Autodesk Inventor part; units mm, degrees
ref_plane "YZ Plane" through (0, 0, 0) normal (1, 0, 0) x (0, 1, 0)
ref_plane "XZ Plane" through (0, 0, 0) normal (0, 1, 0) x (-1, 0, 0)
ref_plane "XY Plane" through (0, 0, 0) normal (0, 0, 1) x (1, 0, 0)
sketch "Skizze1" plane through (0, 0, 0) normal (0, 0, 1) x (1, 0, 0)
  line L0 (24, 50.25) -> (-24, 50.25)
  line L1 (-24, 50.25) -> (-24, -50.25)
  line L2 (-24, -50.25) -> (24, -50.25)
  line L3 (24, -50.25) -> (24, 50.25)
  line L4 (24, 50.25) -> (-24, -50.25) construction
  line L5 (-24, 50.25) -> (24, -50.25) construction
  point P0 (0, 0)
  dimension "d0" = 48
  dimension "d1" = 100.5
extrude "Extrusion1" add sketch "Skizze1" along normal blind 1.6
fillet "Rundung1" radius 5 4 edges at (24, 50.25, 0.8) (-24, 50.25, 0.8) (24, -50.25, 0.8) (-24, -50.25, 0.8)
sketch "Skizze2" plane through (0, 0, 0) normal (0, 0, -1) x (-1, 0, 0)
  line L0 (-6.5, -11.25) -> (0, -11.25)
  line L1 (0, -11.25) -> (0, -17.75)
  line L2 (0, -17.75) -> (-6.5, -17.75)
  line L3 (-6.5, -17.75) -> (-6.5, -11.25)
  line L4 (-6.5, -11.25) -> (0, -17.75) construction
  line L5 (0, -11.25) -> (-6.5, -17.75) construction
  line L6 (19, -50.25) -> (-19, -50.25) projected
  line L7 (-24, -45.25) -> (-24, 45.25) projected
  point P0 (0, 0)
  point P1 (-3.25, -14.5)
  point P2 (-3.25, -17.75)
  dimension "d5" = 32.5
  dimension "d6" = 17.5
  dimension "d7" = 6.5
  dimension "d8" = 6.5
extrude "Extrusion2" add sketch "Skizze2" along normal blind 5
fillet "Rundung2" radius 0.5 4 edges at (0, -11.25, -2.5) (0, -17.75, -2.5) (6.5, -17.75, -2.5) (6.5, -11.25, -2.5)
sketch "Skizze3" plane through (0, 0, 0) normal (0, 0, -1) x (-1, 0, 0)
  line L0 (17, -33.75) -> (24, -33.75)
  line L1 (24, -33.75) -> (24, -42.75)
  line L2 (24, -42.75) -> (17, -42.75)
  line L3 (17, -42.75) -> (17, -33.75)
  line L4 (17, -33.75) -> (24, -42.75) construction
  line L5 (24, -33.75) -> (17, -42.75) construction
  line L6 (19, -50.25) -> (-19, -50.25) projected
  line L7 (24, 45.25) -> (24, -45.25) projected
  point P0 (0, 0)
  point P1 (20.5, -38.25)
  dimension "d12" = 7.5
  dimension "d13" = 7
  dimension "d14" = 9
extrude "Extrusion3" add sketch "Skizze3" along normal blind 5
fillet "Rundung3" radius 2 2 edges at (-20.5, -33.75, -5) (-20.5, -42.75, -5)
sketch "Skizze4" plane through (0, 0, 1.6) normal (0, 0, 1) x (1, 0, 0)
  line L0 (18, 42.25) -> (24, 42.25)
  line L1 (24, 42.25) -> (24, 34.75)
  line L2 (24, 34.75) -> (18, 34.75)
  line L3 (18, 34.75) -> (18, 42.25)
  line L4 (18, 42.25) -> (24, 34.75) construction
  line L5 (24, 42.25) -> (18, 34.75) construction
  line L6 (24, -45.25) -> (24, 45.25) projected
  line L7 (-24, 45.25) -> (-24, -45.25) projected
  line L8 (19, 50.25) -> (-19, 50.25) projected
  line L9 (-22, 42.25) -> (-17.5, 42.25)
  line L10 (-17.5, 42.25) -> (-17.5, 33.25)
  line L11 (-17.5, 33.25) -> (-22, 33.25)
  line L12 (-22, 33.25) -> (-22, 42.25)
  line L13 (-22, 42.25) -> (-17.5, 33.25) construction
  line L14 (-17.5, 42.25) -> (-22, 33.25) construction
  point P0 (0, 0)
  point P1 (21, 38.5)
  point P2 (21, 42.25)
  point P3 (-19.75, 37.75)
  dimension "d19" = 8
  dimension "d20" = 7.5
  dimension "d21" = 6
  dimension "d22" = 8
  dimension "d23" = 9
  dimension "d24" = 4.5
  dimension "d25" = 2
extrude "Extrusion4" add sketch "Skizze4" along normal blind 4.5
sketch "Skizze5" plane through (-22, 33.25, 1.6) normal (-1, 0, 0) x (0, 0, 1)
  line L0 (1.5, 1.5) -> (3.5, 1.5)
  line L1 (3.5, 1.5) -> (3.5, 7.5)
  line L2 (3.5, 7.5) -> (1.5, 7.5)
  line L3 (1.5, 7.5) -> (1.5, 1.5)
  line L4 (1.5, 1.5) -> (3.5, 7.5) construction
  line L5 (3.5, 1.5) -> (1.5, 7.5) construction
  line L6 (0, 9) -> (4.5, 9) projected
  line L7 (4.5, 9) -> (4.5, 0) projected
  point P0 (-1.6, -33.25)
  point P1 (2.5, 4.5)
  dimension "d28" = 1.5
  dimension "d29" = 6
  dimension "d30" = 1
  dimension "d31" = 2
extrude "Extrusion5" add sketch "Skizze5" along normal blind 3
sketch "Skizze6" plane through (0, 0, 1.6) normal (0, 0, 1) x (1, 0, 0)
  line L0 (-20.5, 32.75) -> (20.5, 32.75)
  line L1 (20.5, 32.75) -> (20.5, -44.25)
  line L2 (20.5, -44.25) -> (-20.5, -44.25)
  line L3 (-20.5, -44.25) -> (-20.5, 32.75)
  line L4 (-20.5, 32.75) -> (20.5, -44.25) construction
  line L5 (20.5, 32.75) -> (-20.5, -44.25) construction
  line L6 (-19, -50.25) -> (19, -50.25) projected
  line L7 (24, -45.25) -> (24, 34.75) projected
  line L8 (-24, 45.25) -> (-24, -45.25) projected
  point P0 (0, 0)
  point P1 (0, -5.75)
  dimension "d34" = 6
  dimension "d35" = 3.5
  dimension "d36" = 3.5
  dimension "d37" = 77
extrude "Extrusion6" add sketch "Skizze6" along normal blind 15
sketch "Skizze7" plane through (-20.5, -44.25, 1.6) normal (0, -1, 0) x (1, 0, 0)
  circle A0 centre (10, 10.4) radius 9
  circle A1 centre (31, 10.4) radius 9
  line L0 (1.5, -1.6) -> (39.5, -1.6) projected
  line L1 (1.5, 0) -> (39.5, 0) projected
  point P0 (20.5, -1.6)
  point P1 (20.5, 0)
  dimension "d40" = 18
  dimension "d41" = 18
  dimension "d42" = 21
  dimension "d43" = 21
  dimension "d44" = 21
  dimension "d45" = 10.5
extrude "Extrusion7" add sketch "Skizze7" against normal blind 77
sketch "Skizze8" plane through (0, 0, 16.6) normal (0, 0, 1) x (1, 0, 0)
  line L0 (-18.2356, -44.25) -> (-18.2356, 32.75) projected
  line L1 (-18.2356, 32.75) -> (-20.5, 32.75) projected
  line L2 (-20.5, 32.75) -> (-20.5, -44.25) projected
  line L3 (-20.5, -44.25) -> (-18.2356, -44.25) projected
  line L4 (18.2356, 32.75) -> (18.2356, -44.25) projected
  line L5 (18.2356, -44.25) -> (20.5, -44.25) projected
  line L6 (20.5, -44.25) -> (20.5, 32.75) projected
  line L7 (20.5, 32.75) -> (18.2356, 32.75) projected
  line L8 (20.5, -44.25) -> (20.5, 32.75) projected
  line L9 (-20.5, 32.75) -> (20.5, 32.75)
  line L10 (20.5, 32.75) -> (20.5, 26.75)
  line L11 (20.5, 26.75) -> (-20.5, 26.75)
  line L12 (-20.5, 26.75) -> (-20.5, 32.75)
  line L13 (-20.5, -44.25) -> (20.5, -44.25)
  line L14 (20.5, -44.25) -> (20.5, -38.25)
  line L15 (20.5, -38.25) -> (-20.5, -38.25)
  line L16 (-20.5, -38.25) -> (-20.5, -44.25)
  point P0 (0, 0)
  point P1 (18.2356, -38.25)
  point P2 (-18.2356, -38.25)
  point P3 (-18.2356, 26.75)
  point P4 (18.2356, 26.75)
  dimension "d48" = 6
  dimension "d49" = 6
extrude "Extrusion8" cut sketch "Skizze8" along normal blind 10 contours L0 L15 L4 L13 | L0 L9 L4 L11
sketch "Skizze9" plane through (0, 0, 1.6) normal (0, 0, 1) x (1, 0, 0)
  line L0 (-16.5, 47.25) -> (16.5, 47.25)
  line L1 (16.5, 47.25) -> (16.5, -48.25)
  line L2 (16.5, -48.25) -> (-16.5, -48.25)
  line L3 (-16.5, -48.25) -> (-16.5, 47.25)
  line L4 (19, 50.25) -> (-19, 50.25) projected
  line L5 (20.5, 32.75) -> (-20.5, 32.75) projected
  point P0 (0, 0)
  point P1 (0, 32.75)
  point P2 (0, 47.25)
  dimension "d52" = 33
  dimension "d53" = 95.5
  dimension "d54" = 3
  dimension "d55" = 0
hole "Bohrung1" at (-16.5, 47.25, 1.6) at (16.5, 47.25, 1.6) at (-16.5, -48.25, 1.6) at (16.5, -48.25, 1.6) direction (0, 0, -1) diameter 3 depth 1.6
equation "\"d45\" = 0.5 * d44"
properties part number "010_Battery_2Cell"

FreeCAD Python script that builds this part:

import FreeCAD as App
import Part
import Sketcher
Q = App.Units.Quantity


def edges_at(feature, points):
    """Names of the edges that pass closest to the given points."""
    edges = feature.Shape.Edges
    near = lambda p: min(range(len(edges)), key=lambda i: edges[i].distToShape(Part.Vertex(*p))[0])
    return sorted({f"Edge{near(p) + 1}" for p in points})

doc = App.newDocument("Part")
body = doc.addObject("PartDesign::Body", "Body")

sketch1 = body.newObject("Sketcher::SketchObject", "Sketch")
sketch1.AttachmentSupport = (doc.getObject("XY_Plane"), [""])
sketch1.MapMode = "FlatFace"
sketch1.addGeometry(Part.LineSegment(App.Vector(24, -50, 0), App.Vector(24, 50, 0)), False)
sketch1.addGeometry(Part.LineSegment(App.Vector(24, 50, 0), App.Vector(-24, 50, 0)), False)
sketch1.addGeometry(Part.LineSegment(App.Vector(-24, 50, 0), App.Vector(-24, -50, 0)), False)
sketch1.addGeometry(Part.LineSegment(App.Vector(-24, -50, 0), App.Vector(24, -50, 0)), False)
sketch1.addConstraint(Sketcher.Constraint("Coincident", 0, 2, 1, 1))
sketch1.addConstraint(Sketcher.Constraint("Coincident", 1, 2, 2, 1))
sketch1.addConstraint(Sketcher.Constraint("Coincident", 2, 2, 3, 1))
sketch1.addConstraint(Sketcher.Constraint("Coincident", 3, 2, 0, 1))
sketch1.addConstraint(Sketcher.Constraint("Vertical", 0))
sketch1.addConstraint(Sketcher.Constraint("Horizontal", 1))
sketch1.addConstraint(Sketcher.Constraint("Vertical", 2))
sketch1.addConstraint(Sketcher.Constraint("Horizontal", 3))
sketch1.addConstraint(Sketcher.Constraint("Symmetric", 0, 2, 2, 2, -1, 1))
sketch1.addConstraint(Sketcher.Constraint("DistanceX", 1, 2, 1, 1, Q("48 mm")))
sketch1.addConstraint(Sketcher.Constraint("DistanceY", 0, 1, 0, 2, Q("100.5 mm")))
pad1 = body.newObject("PartDesign::Pad", "Pad")
pad1.Profile = sketch1
pad1.Length = 1.6
doc.recompute()

fillet = body.newObject("PartDesign::Fillet", "Fillet")
fillet.Base = (pad1, edges_at(pad1, [
    (24, 50.25, 0.8),
    (-24, 50.25, 0.8),
    (24, -50.25, 0.8),
    (-24, -50.25, 0.8),
]))
fillet.Radius = 5

sketch2 = body.newObject("Sketcher::SketchObject", "Sketch001")
sketch2.AttachmentSupport = (doc.getObject("XY_Plane"), [""])
sketch2.MapMode = "FlatFace"
sketch2.addGeometry(Part.LineSegment(App.Vector(0, -11, 0), App.Vector(6, -11, 0)), False)
sketch2.addGeometry(Part.LineSegment(App.Vector(6, -11, 0), App.Vector(6, -18, 0)), False)
sketch2.addGeometry(Part.LineSegment(App.Vector(6, -18, 0), App.Vector(0, -18, 0)), False)
sketch2.addGeometry(Part.LineSegment(App.Vector(0, -18, 0), App.Vector(0, -11, 0)), False)
sketch2.addConstraint(Sketcher.Constraint("Coincident", 0, 2, 1, 1))
sketch2.addConstraint(Sketcher.Constraint("Coincident", 1, 2, 2, 1))
sketch2.addConstraint(Sketcher.Constraint("Coincident", 2, 2, 3, 1))
sketch2.addConstraint(Sketcher.Constraint("Coincident", 3, 2, 0, 1))
sketch2.addConstraint(Sketcher.Constraint("Horizontal", 0))
sketch2.addConstraint(Sketcher.Constraint("Vertical", 1))
sketch2.addConstraint(Sketcher.Constraint("Horizontal", 2))
sketch2.addConstraint(Sketcher.Constraint("Vertical", 3))
sketch2.addConstraint(Sketcher.Constraint("PointOnObject", 2, 2, -2))
sketch2.addConstraint(Sketcher.Constraint("Equal", 2, 1))
sketch2.addConstraint(Sketcher.Constraint("DistanceX", 0, 1, 0, 2, Q("6.5 mm")))
sketch2.addConstraint(Sketcher.Constraint("DistanceY", 0, 2, -1, 1, Q("11.25 mm")))
pad2 = body.newObject("PartDesign::Pad", "Pad001")
pad2.Profile = sketch2
pad2.Length = 5
pad2.Reversed = True
doc.recompute()

fillet2 = body.newObject("PartDesign::Fillet", "Fillet001")
fillet2.Base = (pad2, edges_at(pad2, [
    (0, -11.25, -2.5),
    (0, -17.75, -2.5),
    (6.5, -17.75, -2.5),
    (6.5, -11.25, -2.5),
]))
fillet2.Radius = 0.5

sketch3 = body.newObject("Sketcher::SketchObject", "Sketch002")
sketch3.AttachmentSupport = (doc.getObject("XY_Plane"), [""])
sketch3.MapMode = "FlatFace"
sketch3.addGeometry(Part.LineSegment(App.Vector(-24, -34, 0), App.Vector(-17, -34, 0)), False)
sketch3.addGeometry(Part.LineSegment(App.Vector(-17, -34, 0), App.Vector(-17, -43, 0)), False)
sketch3.addGeometry(Part.LineSegment(App.Vector(-17, -43, 0), App.Vector(-24, -43, 0)), False)
sketch3.addGeometry(Part.LineSegment(App.Vector(-24, -43, 0), App.Vector(-24, -34, 0)), False)
sketch3.addConstraint(Sketcher.Constraint("Coincident", 0, 2, 1, 1))
sketch3.addConstraint(Sketcher.Constraint("Coincident", 1, 2, 2, 1))
sketch3.addConstraint(Sketcher.Constraint("Coincident", 2, 2, 3, 1))
sketch3.addConstraint(Sketcher.Constraint("Coincident", 3, 2, 0, 1))
sketch3.addConstraint(Sketcher.Constraint("Horizontal", 0))
sketch3.addConstraint(Sketcher.Constraint("Vertical", 1))
sketch3.addConstraint(Sketcher.Constraint("Horizontal", 2))
sketch3.addConstraint(Sketcher.Constraint("Vertical", 3))
sketch3.addConstraint(Sketcher.Constraint("DistanceX", 0, 1, 0, 2, Q("7 mm")))
sketch3.addConstraint(Sketcher.Constraint("DistanceY", 1, 2, 1, 1, Q("9 mm")))
sketch3.addConstraint(Sketcher.Constraint("DistanceX", 0, 2, -1, 1, Q("17 mm")))
sketch3.addConstraint(Sketcher.Constraint("DistanceY", 0, 2, -1, 1, Q("33.75 mm")))
pad3 = body.newObject("PartDesign::Pad", "Pad002")
pad3.Profile = sketch3
pad3.Length = 5
pad3.Reversed = True
doc.recompute()

fillet3 = body.newObject("PartDesign::Fillet", "Fillet002")
fillet3.Base = (pad3, edges_at(pad3, [(-20.5, -33.75, -5), (-20.5, -42.75, -5)]))
fillet3.Radius = 2

sketch4 = body.newObject("Sketcher::SketchObject", "Sketch003")
sketch4.AttachmentSupport = (doc.getObject("XY_Plane"), [""])
sketch4.MapMode = "FlatFace"
sketch4.AttachmentOffset = App.Placement(App.Vector(0, 0, 1.6), App.Rotation())
sketch4.addGeometry(Part.LineSegment(App.Vector(24, 42.2, 0), App.Vector(18, 42.2, 0)), False)
sketch4.addGeometry(Part.LineSegment(App.Vector(18, 42.2, 0), App.Vector(18, 34.8, 0)), False)
sketch4.addGeometry(Part.LineSegment(App.Vector(18, 34.8, 0), App.Vector(24, 34.8, 0)), False)
sketch4.addGeometry(Part.LineSegment(App.Vector(24, 34.8, 0), App.Vector(24, 42.2, 0)), False)
sketch4.addGeometry(Part.LineSegment(App.Vector(-17.5, 42.2, 0), App.Vector(-22, 42.2, 0)), False)
sketch4.addGeometry(Part.LineSegment(App.Vector(-22, 42.2, 0), App.Vector(-22, 33.2, 0)), False)
sketch4.addGeometry(Part.LineSegment(App.Vector(-22, 33.2, 0), App.Vector(-17.5, 33.2, 0)), False)
sketch4.addGeometry(Part.LineSegment(App.Vector(-17.5, 33.2, 0), App.Vector(-17.5, 42.2, 0)), False)
sketch4.addConstraint(Sketcher.Constraint("Coincident", 0, 2, 1, 1))
sketch4.addConstraint(Sketcher.Constraint("Coincident", 1, 2, 2, 1))
sketch4.addConstraint(Sketcher.Constraint("Coincident", 2, 2, 3, 1))
sketch4.addConstraint(Sketcher.Constraint("Coincident", 3, 2, 0, 1))
sketch4.addConstraint(Sketcher.Constraint("Coincident", 4, 2, 5, 1))
sketch4.addConstraint(Sketcher.Constraint("Coincident", 5, 2, 6, 1))
sketch4.addConstraint(Sketcher.Constraint("Coincident", 6, 2, 7, 1))
sketch4.addConstraint(Sketcher.Constraint("Coincident", 7, 2, 4, 1))
sketch4.addConstraint(Sketcher.Constraint("Horizontal", 0))
sketch4.addConstraint(Sketcher.Constraint("Vertical", 1))
sketch4.addConstraint(Sketcher.Constraint("Horizontal", 2))
sketch4.addConstraint(Sketcher.Constraint("Vertical", 3))
sketch4.addConstraint(Sketcher.Constraint("Horizontal", 4))
sketch4.addConstraint(Sketcher.Constraint("Vertical", 5))
sketch4.addConstraint(Sketcher.Constraint("Horizontal", 6))
sketch4.addConstraint(Sketcher.Constraint("Vertical", 7))
sketch4.addConstraint(Sketcher.Constraint("Horizontal", 3, 2, 4, 2))
sketch4.addConstraint(Sketcher.Constraint("DistanceX", 0, 2, 0, 1, Q("6 mm")))
sketch4.addConstraint(Sketcher.Constraint("DistanceY", 5, 2, 5, 1, Q("9 mm")))
sketch4.addConstraint(Sketcher.Constraint("DistanceX", 4, 2, 4, 1, Q("4.5 mm")))
sketch4.addConstraint(Sketcher.Constraint("DistanceY", 1, 2, 1, 1, Q("7.5 mm")))
sketch4.addConstraint(Sketcher.Constraint("DistanceX", -1, 1, 0, 2, Q("18 mm")))
sketch4.addConstraint(Sketcher.Constraint("DistanceX", 4, 2, -1, 1, Q("22 mm")))
sketch4.addConstraint(Sketcher.Constraint("DistanceY", -1, 1, 0, 2, Q("42.25 mm")))
pad4 = body.newObject("PartDesign::Pad", "Pad003")
pad4.Profile = sketch4
pad4.Length = 4.5

sketch5 = body.newObject("Sketcher::SketchObject", "Sketch004")
sketch5.AttachmentSupport = (doc.getObject("YZ_Plane"), [""])
sketch5.MapMode = "FlatFace"
sketch5.AttachmentOffset = App.Placement(App.Vector(0, 0, -22), App.Rotation())
sketch5.addGeometry(Part.LineSegment(App.Vector(40.8, 3.1, 0), App.Vector(34.8, 3.1, 0)), False)
sketch5.addGeometry(Part.LineSegment(App.Vector(34.8, 3.1, 0), App.Vector(34.8, 5.1, 0)), False)
sketch5.addGeometry(Part.LineSegment(App.Vector(34.8, 5.1, 0), App.Vector(40.8, 5.1, 0)), False)
sketch5.addGeometry(Part.LineSegment(App.Vector(40.8, 5.1, 0), App.Vector(40.8, 3.1, 0)), False)
sketch5.addConstraint(Sketcher.Constraint("Coincident", 0, 2, 1, 1))
sketch5.addConstraint(Sketcher.Constraint("Coincident", 1, 2, 2, 1))
sketch5.addConstraint(Sketcher.Constraint("Coincident", 2, 2, 3, 1))
sketch5.addConstraint(Sketcher.Constraint("Coincident", 3, 2, 0, 1))
sketch5.addConstraint(Sketcher.Constraint("Horizontal", 0))
sketch5.addConstraint(Sketcher.Constraint("Vertical", 1))
sketch5.addConstraint(Sketcher.Constraint("Horizontal", 2))
sketch5.addConstraint(Sketcher.Constraint("Vertical", 3))
sketch5.addConstraint(Sketcher.Constraint("DistanceX", 0, 2, 0, 1, Q("6 mm")))
sketch5.addConstraint(Sketcher.Constraint("DistanceY", 1, 1, 1, 2, Q("2 mm")))
sketch5.addConstraint(Sketcher.Constraint("DistanceY", -1, 1, 0, 2, Q("3.1 mm")))
sketch5.addConstraint(Sketcher.Constraint("DistanceX", -1, 1, 0, 2, Q("34.75 mm")))
pad5 = body.newObject("PartDesign::Pad", "Pad004")
pad5.Profile = sketch5
pad5.Length = 3
pad5.Reversed = True

sketch6 = body.newObject("Sketcher::SketchObject", "Sketch005")
sketch6.AttachmentSupport = (doc.getObject("XY_Plane"), [""])
sketch6.MapMode = "FlatFace"
sketch6.AttachmentOffset = App.Placement(App.Vector(0, 0, 1.6), App.Rotation())
sketch6.addGeometry(Part.LineSegment(App.Vector(20, 33, 0), App.Vector(-20, 33, 0)), False)
sketch6.addGeometry(Part.LineSegment(App.Vector(-20, 33, 0), App.Vector(-20, -44, 0)), False)
sketch6.addGeometry(Part.LineSegment(App.Vector(-20, -44, 0), App.Vector(20, -44, 0)), False)
sketch6.addGeometry(Part.LineSegment(App.Vector(20, -44, 0), App.Vector(20, 33, 0)), False)
sketch6.addConstraint(Sketcher.Constraint("Coincident", 0, 2, 1, 1))
sketch6.addConstraint(Sketcher.Constraint("Coincident", 1, 2, 2, 1))
sketch6.addConstraint(Sketcher.Constraint("Coincident", 2, 2, 3, 1))
sketch6.addConstraint(Sketcher.Constraint("Coincident", 3, 2, 0, 1))
sketch6.addConstraint(Sketcher.Constraint("Horizontal", 0))
sketch6.addConstraint(Sketcher.Constraint("Vertical", 1))
sketch6.addConstraint(Sketcher.Constraint("Horizontal", 2))
sketch6.addConstraint(Sketcher.Constraint("Vertical", 3))
sketch6.addConstraint(Sketcher.Constraint("DistanceY", 1, 2, 1, 1, Q("77 mm")))
sketch6.addConstraint(Sketcher.Constraint("DistanceX", 0, 2, 0, 1, Q("41 mm")))
sketch6.addConstraint(Sketcher.Constraint("DistanceX", 0, 2, -1, 1, Q("20.5 mm")))
sketch6.addConstraint(Sketcher.Constraint("DistanceY", -1, 1, 0, 2, Q("32.75 mm")))
pad6 = body.newObject("PartDesign::Pad", "Pad005")
pad6.Profile = sketch6
pad6.Length = 15

sketch7 = body.newObject("Sketcher::SketchObject", "Sketch006")
sketch7.AttachmentSupport = (doc.getObject("XZ_Plane"), [""])
sketch7.MapMode = "FlatFace"
sketch7.AttachmentOffset = App.Placement(App.Vector(0, 0, 44.25), App.Rotation())
sketch7.addGeometry(Part.Circle(App.Vector(-10, 12, 0), App.Vector(0, 0, 1), 9), False)
sketch7.addGeometry(Part.Circle(App.Vector(10, 12, 0), App.Vector(0, 0, 1), 9), False)
sketch7.addConstraint(Sketcher.Constraint("Equal", 0, 1))
sketch7.addConstraint(Sketcher.Constraint("Symmetric", 0, 3, 1, 3, -2))
sketch7.addConstraint(Sketcher.Constraint("Diameter", 0, Q("18 mm")))
sketch7.addConstraint(Sketcher.Constraint("DistanceX", 0, 3, 1, 3, Q("21 mm")))
sketch7.addConstraint(Sketcher.Constraint("DistanceY", -1, 1, 0, 3, Q("12 mm")))
pad7 = body.newObject("PartDesign::Pad", "Pad006")
pad7.Profile = sketch7
pad7.Length = 77
pad7.Reversed = True

sketch8 = body.newObject("Sketcher::SketchObject", "Sketch007")
sketch8.AttachmentSupport = (doc.getObject("XY_Plane"), [""])
sketch8.MapMode = "FlatFace"
sketch8.AttachmentOffset = App.Placement(App.Vector(0, 0, 16.6), App.Rotation())
sketch8.addGeometry(Part.LineSegment(App.Vector(-18, -38, 0), App.Vector(-18, -44, 0)), False)
sketch8.addGeometry(Part.LineSegment(App.Vector(-18, -44, 0), App.Vector(18, -44, 0)), False)
sketch8.addGeometry(Part.LineSegment(App.Vector(18, -44, 0), App.Vector(18, -38, 0)), False)
sketch8.addGeometry(Part.LineSegment(App.Vector(18, -38, 0), App.Vector(-18, -38, 0)), False)
sketch8.addGeometry(Part.LineSegment(App.Vector(-18, 33, 0), App.Vector(-18, 27, 0)), False)
sketch8.addGeometry(Part.LineSegment(App.Vector(-18, 27, 0), App.Vector(18, 27, 0)), False)
sketch8.addGeometry(Part.LineSegment(App.Vector(18, 27, 0), App.Vector(18, 33, 0)), False)
sketch8.addGeometry(Part.LineSegment(App.Vector(18, 33, 0), App.Vector(-18, 33, 0)), False)
sketch8.addConstraint(Sketcher.Constraint("Coincident", 0, 2, 1, 1))
sketch8.addConstraint(Sketcher.Constraint("Coincident", 1, 2, 2, 1))
sketch8.addConstraint(Sketcher.Constraint("Coincident", 2, 2, 3, 1))
sketch8.addConstraint(Sketcher.Constraint("Coincident", 3, 2, 0, 1))
sketch8.addConstraint(Sketcher.Constraint("Coincident", 4, 2, 5, 1))
sketch8.addConstraint(Sketcher.Constraint("Coincident", 5, 2, 6, 1))
sketch8.addConstraint(Sketcher.Constraint("Coincident", 6, 2, 7, 1))
sketch8.addConstraint(Sketcher.Constraint("Coincident", 7, 2, 4, 1))
sketch8.addConstraint(Sketcher.Constraint("Vertical", 0))
sketch8.addConstraint(Sketcher.Constraint("Horizontal", 1))
sketch8.addConstraint(Sketcher.Constraint("Vertical", 2))
sketch8.addConstraint(Sketcher.Constraint("Horizontal", 3))
sketch8.addConstraint(Sketcher.Constraint("Vertical", 4))
sketch8.addConstraint(Sketcher.Constraint("Horizontal", 5))
sketch8.addConstraint(Sketcher.Constraint("Vertical", 6))
sketch8.addConstraint(Sketcher.Constraint("Horizontal", 7))
sketch8.addConstraint(Sketcher.Constraint("Vertical", 3, 2, 4, 2))
sketch8.addConstraint(Sketcher.Constraint("Vertical", 2, 2, 5, 2))
sketch8.addConstraint(Sketcher.Constraint("Equal", 2, 4))
sketch8.addConstraint(Sketcher.Constraint("DistanceY", 0, 2, 0, 1, Q("6 mm")))
sketch8.addConstraint(Sketcher.Constraint("DistanceY", 3, 2, 4, 2, Q("65 mm")))
sketch8.addConstraint(Sketcher.Constraint("DistanceY", 0, 2, -1, 1, Q("44.25 mm")))
sketch8.addConstraint(Sketcher.Constraint("DistanceX", 1, 1, 1, 2, Q("36.4712 mm")))
sketch8.addConstraint(Sketcher.Constraint("DistanceX", 0, 2, -1, 1, Q("18.2356 mm")))
pocket1 = body.newObject("PartDesign::Pocket", "Pocket")
pocket1.Profile = sketch8
pocket1.Length = 10
pocket1.Reversed = True

sketch9 = body.newObject("Sketcher::SketchObject", "Sketch008")
sketch9.AttachmentSupport = (doc.getObject("XY_Plane"), [""])
sketch9.MapMode = "FlatFace"
sketch9.AttachmentOffset = App.Placement(App.Vector(0, 0, 1.6), App.Rotation())
sketch9.addGeometry(Part.Circle(App.Vector(-16.5, 47.2, 0), App.Vector(0, 0, 1), 1.5), False)
sketch9.addGeometry(Part.Circle(App.Vector(16.5, 47.2, 0), App.Vector(0, 0, 1), 1.5), False)
sketch9.addGeometry(Part.Circle(App.Vector(-16.5, -48.2, 0), App.Vector(0, 0, 1), 1.5), False)
sketch9.addGeometry(Part.Circle(App.Vector(16.5, -48.2, 0), App.Vector(0, 0, 1), 1.5), False)
sketch9.addConstraint(Sketcher.Constraint("Equal", 0, 1))
sketch9.addConstraint(Sketcher.Constraint("Equal", 1, 2))
sketch9.addConstraint(Sketcher.Constraint("Equal", 2, 3))
sketch9.addConstraint(Sketcher.Constraint("Symmetric", 0, 3, 1, 3, -2))
sketch9.addConstraint(Sketcher.Constraint("Symmetric", 2, 3, 3, 3, -2))
sketch9.addConstraint(Sketcher.Constraint("Vertical", 0, 3, 2, 3))
sketch9.addConstraint(Sketcher.Constraint("Diameter", 0, Q("3 mm")))
sketch9.addConstraint(Sketcher.Constraint("DistanceX", 0, 3, 1, 3, Q("33 mm")))
sketch9.addConstraint(Sketcher.Constraint("DistanceY", 2, 3, 0, 3, Q("95.5 mm")))
sketch9.addConstraint(Sketcher.Constraint("DistanceY", -1, 1, 0, 3, Q("47.25 mm")))
doc.recompute()
hole = body.newObject("PartDesign::Hole", "Hole")
hole.Profile = sketch9
hole.ThreadType = "None"
hole.Diameter = 3
hole.DepthType = "Dimension"
hole.Depth = 1.6
hole.DrillPoint = "Flat"

doc.recompute()
